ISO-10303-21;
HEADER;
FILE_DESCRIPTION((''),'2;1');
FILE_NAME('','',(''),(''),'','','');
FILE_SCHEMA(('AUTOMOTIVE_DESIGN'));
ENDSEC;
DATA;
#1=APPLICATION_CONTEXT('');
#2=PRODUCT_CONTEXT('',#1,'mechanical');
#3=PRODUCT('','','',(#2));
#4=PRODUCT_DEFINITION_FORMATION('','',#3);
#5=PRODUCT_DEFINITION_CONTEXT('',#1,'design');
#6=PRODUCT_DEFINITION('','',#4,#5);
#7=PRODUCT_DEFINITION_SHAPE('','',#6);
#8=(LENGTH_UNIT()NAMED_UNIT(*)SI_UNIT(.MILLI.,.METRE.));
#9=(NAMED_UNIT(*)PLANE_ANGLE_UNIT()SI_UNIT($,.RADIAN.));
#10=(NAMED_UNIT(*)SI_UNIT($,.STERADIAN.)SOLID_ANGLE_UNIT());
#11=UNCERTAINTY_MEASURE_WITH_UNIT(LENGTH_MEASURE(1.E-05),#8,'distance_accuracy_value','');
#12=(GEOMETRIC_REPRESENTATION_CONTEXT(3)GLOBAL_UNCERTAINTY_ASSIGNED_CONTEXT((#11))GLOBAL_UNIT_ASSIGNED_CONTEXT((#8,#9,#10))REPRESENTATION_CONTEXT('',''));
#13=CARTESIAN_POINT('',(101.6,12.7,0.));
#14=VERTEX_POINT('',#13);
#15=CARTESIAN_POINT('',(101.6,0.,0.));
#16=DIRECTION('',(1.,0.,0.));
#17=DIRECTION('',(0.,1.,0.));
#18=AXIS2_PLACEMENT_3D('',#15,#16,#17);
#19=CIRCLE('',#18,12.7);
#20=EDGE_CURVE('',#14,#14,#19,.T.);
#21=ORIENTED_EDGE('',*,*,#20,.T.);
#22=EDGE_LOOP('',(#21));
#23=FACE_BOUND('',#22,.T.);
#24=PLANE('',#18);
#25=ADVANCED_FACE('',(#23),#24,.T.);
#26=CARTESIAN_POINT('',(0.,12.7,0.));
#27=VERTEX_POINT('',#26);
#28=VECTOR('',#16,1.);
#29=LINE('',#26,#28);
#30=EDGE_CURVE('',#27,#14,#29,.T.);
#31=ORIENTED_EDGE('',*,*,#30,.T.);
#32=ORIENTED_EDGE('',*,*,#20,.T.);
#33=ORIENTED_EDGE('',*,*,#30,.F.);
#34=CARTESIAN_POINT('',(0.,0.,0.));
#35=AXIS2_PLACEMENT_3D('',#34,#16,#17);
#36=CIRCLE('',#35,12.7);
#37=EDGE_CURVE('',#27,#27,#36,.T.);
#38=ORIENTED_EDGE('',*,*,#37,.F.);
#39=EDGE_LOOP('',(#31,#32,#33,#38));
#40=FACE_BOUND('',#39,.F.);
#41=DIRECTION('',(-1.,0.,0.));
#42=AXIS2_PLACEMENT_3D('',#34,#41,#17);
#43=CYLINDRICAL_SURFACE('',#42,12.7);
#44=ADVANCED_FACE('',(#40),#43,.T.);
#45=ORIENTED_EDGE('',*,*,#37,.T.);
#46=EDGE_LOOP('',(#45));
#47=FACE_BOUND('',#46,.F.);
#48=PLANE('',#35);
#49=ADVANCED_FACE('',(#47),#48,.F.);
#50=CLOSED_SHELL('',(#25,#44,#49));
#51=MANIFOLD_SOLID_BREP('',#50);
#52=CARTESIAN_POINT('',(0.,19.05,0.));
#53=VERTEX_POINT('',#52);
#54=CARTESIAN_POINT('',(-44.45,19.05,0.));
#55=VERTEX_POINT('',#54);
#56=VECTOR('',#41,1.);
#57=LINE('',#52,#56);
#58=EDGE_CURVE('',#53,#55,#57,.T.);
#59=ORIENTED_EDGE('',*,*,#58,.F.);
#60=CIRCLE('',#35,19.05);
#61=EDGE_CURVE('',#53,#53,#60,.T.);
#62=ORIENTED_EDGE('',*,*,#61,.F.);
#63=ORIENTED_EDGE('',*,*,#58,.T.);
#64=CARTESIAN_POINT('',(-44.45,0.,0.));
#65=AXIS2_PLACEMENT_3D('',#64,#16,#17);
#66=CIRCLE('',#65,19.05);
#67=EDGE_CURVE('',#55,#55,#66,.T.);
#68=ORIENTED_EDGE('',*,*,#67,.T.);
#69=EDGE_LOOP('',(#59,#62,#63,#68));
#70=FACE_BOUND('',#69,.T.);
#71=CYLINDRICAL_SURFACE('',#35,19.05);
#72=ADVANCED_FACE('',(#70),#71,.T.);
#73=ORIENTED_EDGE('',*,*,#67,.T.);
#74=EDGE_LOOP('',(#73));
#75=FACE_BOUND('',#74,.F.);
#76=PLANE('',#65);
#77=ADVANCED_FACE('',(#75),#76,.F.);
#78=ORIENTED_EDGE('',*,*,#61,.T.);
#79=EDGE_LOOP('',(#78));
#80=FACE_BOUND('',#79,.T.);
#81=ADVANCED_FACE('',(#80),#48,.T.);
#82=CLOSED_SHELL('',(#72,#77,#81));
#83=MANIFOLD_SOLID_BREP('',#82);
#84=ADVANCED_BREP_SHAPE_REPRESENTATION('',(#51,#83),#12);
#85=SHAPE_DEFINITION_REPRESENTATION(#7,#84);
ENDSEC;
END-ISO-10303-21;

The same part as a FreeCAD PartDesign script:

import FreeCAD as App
import Part
import Sketcher
Q = App.Units.Quantity

doc = App.newDocument("Part")
params = doc.addObject("Spreadsheet::Sheet", "Params")
for row, (alias, value) in enumerate([
    ("sketch1_diameter", "1 in"),
    ("pad1_length", "4 in"),
    ("sketch2_diameter", "1.5 in"),
    ("pad2_length", "1.75 in"),
], start=1):
    params.set(f"A{row}", alias)
    params.set(f"B{row}", "=" + value)
    params.setAlias(f"B{row}", alias)

body = doc.addObject("PartDesign::Body", "Body")

# Sketch on YZ plane
sketch1 = body.newObject("Sketcher::SketchObject", "Sketch")
sketch1.AttachmentSupport = (doc.getObject("YZ_Plane"), [""])
sketch1.MapMode = "FlatFace"
sketch1.addGeometry(Part.Circle(App.Vector(0, 0, 0), App.Vector(0, 0, 1), 12.7), False)
sketch1.addConstraint(Sketcher.Constraint("Coincident", 0, 3, -1, 1))
sketch1.addConstraint(Sketcher.Constraint("Diameter", 0, Q("1 in")))
sketch1.setExpression("Constraints[1]", "Params.sketch1_diameter")
pad1 = body.newObject("PartDesign::Pad", "Pad")
pad1.Profile = sketch1
pad1.setExpression("Length", "Params.pad1_length")
body2 = doc.addObject("PartDesign::Body", "Body001")

# Sketch on YZ plane
sketch2 = body2.newObject("Sketcher::SketchObject", "Sketch001")
sketch2.AttachmentSupport = (doc.getObject("YZ_Plane001"), [""])
sketch2.MapMode = "FlatFace"
sketch2.addGeometry(Part.Circle(App.Vector(0, 0, 0), App.Vector(0, 0, 1), 19.05), False)
sketch2.addConstraint(Sketcher.Constraint("Coincident", 0, 3, -1, 1))
sketch2.addConstraint(Sketcher.Constraint("Diameter", 0, Q("1.5 in")))
sketch2.setExpression("Constraints[1]", "Params.sketch2_diameter")
pad2 = body2.newObject("PartDesign::Pad", "Pad001")
pad2.Profile = sketch2
pad2.setExpression("Length", "Params.pad2_length")
pad2.Reversed = True

doc.recompute()
